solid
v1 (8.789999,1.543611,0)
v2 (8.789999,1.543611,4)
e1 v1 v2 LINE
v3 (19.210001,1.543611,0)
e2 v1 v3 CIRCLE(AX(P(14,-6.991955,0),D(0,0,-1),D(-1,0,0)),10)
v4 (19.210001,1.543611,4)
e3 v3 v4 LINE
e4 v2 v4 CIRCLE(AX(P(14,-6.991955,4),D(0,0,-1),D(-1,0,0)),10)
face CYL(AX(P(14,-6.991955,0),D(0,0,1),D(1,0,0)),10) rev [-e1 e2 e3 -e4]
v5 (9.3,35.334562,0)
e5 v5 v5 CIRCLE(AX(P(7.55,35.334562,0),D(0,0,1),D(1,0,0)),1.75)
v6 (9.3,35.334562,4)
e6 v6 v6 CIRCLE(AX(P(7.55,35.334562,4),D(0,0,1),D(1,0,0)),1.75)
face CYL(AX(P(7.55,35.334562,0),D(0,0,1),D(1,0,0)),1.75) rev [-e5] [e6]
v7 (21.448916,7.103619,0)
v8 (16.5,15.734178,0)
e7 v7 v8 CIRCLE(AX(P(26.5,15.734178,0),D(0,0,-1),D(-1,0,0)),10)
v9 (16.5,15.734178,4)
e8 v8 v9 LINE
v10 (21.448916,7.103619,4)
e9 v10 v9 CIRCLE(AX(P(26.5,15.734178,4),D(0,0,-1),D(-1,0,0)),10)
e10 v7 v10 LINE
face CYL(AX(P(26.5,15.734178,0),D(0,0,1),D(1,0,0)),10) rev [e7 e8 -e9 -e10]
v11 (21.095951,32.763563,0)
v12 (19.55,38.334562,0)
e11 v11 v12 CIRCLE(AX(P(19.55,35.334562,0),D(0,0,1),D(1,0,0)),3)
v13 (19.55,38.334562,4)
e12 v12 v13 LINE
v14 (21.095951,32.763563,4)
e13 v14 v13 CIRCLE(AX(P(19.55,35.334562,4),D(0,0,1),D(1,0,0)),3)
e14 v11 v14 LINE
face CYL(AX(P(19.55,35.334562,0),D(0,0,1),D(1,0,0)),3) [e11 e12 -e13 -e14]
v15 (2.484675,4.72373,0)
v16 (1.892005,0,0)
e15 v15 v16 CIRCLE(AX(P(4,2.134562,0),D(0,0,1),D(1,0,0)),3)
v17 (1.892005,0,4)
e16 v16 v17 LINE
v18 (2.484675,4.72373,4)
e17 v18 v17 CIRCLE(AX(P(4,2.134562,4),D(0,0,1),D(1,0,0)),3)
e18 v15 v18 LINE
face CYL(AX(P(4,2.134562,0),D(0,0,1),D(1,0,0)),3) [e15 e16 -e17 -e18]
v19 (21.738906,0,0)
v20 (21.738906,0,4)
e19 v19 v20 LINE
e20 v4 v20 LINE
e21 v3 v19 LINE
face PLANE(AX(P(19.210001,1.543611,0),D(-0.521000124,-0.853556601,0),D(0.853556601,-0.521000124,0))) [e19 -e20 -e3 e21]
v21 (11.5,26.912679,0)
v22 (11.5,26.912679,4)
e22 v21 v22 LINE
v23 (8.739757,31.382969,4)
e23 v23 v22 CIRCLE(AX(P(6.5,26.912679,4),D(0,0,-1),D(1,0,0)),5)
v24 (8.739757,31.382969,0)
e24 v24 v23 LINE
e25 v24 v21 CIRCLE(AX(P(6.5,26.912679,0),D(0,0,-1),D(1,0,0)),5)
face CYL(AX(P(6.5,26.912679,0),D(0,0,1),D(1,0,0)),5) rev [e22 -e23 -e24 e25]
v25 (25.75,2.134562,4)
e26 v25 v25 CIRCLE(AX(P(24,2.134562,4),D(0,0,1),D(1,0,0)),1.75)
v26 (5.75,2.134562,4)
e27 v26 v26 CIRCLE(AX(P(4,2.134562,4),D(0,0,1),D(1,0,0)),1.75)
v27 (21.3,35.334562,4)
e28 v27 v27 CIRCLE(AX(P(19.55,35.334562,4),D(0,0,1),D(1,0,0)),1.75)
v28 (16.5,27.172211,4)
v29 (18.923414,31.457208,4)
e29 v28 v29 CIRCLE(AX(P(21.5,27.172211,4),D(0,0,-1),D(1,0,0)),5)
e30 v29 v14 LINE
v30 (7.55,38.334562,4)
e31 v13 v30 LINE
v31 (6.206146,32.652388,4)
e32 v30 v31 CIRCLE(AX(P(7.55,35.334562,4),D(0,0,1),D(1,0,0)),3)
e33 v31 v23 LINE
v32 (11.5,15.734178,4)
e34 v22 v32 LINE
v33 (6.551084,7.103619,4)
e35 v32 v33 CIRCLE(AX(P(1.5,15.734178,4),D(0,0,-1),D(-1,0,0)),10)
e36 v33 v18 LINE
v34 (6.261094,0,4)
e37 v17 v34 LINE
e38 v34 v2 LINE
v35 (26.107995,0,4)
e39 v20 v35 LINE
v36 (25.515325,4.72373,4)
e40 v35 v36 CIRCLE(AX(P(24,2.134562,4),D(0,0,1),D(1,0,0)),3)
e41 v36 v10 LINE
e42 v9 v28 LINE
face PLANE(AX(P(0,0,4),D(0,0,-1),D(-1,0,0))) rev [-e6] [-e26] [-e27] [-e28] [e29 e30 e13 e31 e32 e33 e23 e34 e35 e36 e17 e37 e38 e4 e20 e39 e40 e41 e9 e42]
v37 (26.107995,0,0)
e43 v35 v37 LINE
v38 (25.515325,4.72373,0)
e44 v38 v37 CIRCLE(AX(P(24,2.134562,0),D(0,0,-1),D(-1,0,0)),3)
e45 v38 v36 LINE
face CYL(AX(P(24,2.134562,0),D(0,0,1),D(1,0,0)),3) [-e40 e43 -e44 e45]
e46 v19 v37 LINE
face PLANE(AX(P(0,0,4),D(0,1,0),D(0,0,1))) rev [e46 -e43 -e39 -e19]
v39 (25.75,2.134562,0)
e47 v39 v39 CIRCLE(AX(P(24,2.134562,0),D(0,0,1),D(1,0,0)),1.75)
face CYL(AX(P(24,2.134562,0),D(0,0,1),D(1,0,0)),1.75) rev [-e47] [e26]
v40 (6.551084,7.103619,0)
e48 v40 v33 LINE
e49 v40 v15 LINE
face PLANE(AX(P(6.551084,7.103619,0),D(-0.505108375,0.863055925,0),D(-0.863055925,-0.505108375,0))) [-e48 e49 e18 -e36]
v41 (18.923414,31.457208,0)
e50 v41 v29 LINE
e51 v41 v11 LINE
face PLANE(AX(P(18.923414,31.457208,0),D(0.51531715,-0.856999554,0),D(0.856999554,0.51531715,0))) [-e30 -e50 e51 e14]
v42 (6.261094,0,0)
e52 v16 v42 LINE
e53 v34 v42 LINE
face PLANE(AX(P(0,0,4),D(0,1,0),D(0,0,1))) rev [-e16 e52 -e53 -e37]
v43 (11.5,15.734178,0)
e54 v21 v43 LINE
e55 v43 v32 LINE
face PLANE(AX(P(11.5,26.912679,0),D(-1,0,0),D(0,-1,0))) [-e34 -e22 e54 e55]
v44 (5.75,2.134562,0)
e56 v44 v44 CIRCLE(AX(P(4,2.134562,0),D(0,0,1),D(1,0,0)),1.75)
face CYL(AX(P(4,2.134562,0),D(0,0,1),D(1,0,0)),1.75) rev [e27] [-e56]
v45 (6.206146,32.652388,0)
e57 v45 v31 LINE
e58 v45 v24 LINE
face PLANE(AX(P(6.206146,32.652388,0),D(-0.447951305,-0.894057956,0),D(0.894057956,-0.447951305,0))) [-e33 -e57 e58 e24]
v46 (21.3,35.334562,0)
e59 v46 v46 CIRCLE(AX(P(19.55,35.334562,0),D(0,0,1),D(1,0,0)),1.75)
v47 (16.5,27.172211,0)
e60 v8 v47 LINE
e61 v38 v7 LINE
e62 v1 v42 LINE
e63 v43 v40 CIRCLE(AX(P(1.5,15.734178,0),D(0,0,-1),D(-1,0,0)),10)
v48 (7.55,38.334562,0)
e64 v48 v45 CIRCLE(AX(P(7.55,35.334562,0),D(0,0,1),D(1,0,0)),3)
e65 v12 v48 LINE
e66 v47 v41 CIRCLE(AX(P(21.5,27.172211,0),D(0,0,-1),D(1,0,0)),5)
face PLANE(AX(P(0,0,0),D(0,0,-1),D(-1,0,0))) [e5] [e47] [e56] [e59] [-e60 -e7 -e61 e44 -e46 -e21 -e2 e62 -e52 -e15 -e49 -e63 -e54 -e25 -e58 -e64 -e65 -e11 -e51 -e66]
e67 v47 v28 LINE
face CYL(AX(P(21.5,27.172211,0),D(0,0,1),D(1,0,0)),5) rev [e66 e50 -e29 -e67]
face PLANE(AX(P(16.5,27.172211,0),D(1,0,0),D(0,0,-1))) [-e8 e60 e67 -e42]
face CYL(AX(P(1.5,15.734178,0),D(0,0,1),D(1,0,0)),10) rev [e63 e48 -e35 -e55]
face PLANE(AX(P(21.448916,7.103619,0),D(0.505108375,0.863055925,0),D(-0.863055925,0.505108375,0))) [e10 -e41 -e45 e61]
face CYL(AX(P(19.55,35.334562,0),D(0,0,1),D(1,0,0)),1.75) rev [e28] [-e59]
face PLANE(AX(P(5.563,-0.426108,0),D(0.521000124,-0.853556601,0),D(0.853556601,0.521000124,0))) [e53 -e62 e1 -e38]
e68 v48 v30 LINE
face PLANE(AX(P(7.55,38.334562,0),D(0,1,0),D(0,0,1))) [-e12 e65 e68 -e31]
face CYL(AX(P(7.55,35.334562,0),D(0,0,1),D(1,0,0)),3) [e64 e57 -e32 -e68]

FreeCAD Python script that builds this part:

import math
import FreeCAD as App
import Part
import Sketcher

V = App.Vector


def add_polygon(sketch, points):
    """Adds a closed chain of lines whose ends are joined by coincident constraints."""
    first, n = sketch.GeometryCount, len(points)
    for a, b in zip(points, points[1:] + points[:1]):
        sketch.addGeometry(Part.LineSegment(App.Vector(*a, 0), App.Vector(*b, 0)), False)
    for i in range(n):
        sketch.addConstraint(Sketcher.Constraint("Coincident", first + i, 2, first + (i + 1) % n, 1))

doc = App.newDocument("Part")
body = doc.addObject("PartDesign::Body", "Body")

# Sketch on XY plane
sketch1 = body.newObject("Sketcher::SketchObject", "Sketch")
sketch1.AttachmentSupport = (doc.getObject("XY_Plane"), [""])
sketch1.MapMode = "FlatFace"
add_polygon(sketch1, [(0, 40), (0, 0), (28, 0), (28, 40)])  # lines 0-3
sketch1.addConstraint(Sketcher.Constraint("Vertical", 0))
sketch1.addConstraint(Sketcher.Constraint("Horizontal", 1))
sketch1.addConstraint(Sketcher.Constraint("Vertical", 2))
sketch1.addConstraint(Sketcher.Constraint("Horizontal", 3))
sketch1.addConstraint(Sketcher.Constraint("Coincident", 0, 2, -1, 1))
sketch1.addConstraint(Sketcher.Constraint("DistanceX", 1, 1, 1, 2, 28.0))
sketch1.addConstraint(Sketcher.Constraint("DistanceY", 0, 2, 0, 1, 40.0))
pad1 = body.newObject("PartDesign::Pad", "Pad")
pad1.Profile = sketch1
pad1.Length = 4

# Sketch on XY plane
sketch2 = body.newObject("Sketcher::SketchObject", "Sketch001")
sketch2.AttachmentSupport = (doc.getObject("XY_Plane"), [""])
sketch2.MapMode = "FlatFace"
sketch2.AttachmentOffset = App.Placement(V(0, 0, 4), App.Rotation())
sketch2.addGeometry(Part.Circle(V(7.5, 35.3, 0), V(0, 0, 1), 1.8), False)
sketch2.addGeometry(Part.Circle(V(19.6, 35.3, 0), V(0, 0, 1), 1.8), False)
sketch2.addGeometry(Part.Circle(V(4, 2.1, 0), V(0, 0, 1), 1.8), False)
sketch2.addGeometry(Part.Circle(V(24, 2.1, 0), V(0, 0, 1), 1.8), False)
sketch2.addConstraint(Sketcher.Constraint("Equal", 0, 1))
sketch2.addConstraint(Sketcher.Constraint("Equal", 1, 2))
sketch2.addConstraint(Sketcher.Constraint("Equal", 2, 3))
sketch2.addConstraint(Sketcher.Constraint("Horizontal", 0, 3, 1, 3))
sketch2.addConstraint(Sketcher.Constraint("Horizontal", 2, 3, 3, 3))
sketch2.addConstraint(Sketcher.Constraint("Diameter", 0, 3.5))
sketch2.addConstraint(Sketcher.Constraint("DistanceX", -1, 1, 2, 3, 4.0))
sketch2.addConstraint(Sketcher.Constraint("DistanceX", -1, 1, 3, 3, 24.0))
sketch2.addConstraint(Sketcher.Constraint("DistanceX", 0, 3, 1, 3, 12.0))
sketch2.addConstraint(Sketcher.Constraint("DistanceY", 2, 3, 0, 3, 33.2))
sketch2.addConstraint(Sketcher.Constraint("DistanceX", -1, 1, 0, 3, 7.55))
sketch2.addConstraint(Sketcher.Constraint("DistanceY", -1, 1, 0, 3, 35.334562))
pocket1 = body.newObject("PartDesign::Pocket", "Pocket")
pocket1.Profile = sketch2
pocket1.Type = "ThroughAll"

# Sketch on XY plane
sketch3 = body.newObject("Sketcher::SketchObject", "Sketch002")
sketch3.AttachmentSupport = (doc.getObject("XY_Plane"), [""])
sketch3.MapMode = "FlatFace"
sketch3.AttachmentOffset = App.Placement(V(0, 0, 4), App.Rotation())
add_polygon(sketch3, [(-7.4, 44), (-7.4, -4.9), (39.4, -4.9), (39.4, 44)])  # lines 0-3
sketch3.addGeometry(Part.LineSegment(V(11.5, 15.7, 0), V(11.5, 26.9, 0)), False)  # 4
sketch3.addGeometry(Part.ArcOfCircle(Part.Circle(V(6.5, 26.9, 0), V(0, 0, 1), 5), math.radians(0), math.radians(63)), False)  # 5
sketch3.addGeometry(Part.LineSegment(V(8.7, 31.4, 0), V(6.2, 32.7, 0)), False)  # 6
sketch3.addGeometry(Part.ArcOfCircle(Part.Circle(V(7.5, 35.3, 0), V(0, 0, 1), 3), math.radians(90), math.radians(243)), False)  # 7
sketch3.addGeometry(Part.LineSegment(V(7.5, 38.3, 0), V(19.6, 38.3, 0)), False)  # 8
sketch3.addGeometry(Part.ArcOfCircle(Part.Circle(V(19.6, 35.3, 0), V(0, 0, 1), 3), math.radians(-59), math.radians(90)), False)  # 9
sketch3.addGeometry(Part.LineSegment(V(21.1, 32.8, 0), V(18.9, 31.5, 0)), False)  # 10
sketch3.addGeometry(Part.ArcOfCircle(Part.Circle(V(21.5, 27.2, 0), V(0, 0, 1), 5), math.radians(121), math.radians(180)), False)  # 11
sketch3.addGeometry(Part.LineSegment(V(16.5, 27.2, 0), V(16.5, 15.7, 0)), False)  # 12
sketch3.addGeometry(Part.ArcOfCircle(Part.Circle(V(26.5, 15.7, 0), V(0, 0, 1), 10), math.radians(-180), math.radians(-120)), False)  # 13
sketch3.addGeometry(Part.LineSegment(V(21.4, 7.1, 0), V(25.5, 4.7, 0)), False)  # 14
sketch3.addGeometry(Part.ArcOfCircle(Part.Circle(V(24, 2.1, 0), V(0, 0, 1), 3), math.radians(-121), math.radians(60)), False)  # 15
sketch3.addGeometry(Part.LineSegment(V(22.4, -0.4, 0), V(19.2, 1.5, 0)), False)  # 16
sketch3.addGeometry(Part.ArcOfCircle(Part.Circle(V(14, -7, 0), V(0, 0, 1), 10), math.radians(59), math.radians(121)), False)  # 17
sketch3.addGeometry(Part.LineSegment(V(8.8, 1.5, 0), V(5.6, -0.4, 0)), False)  # 18
sketch3.addGeometry(Part.ArcOfCircle(Part.Circle(V(4, 2.1, 0), V(0, 0, 1), 3), math.radians(120), math.radians(301)), False)  # 19
sketch3.addGeometry(Part.LineSegment(V(2.5, 4.7, 0), V(6.6, 7.1, 0)), False)  # 20
sketch3.addGeometry(Part.ArcOfCircle(Part.Circle(V(1.5, 15.7, 0), V(0, 0, 1), 10), math.radians(-60), math.radians(0)), False)  # 21
sketch3.addConstraint(Sketcher.Constraint("Tangent", 4, 2, 5, 1))
sketch3.addConstraint(Sketcher.Constraint("Tangent", 5, 2, 6, 1))
sketch3.addConstraint(Sketcher.Constraint("Tangent", 6, 2, 7, 2))
sketch3.addConstraint(Sketcher.Constraint("Tangent", 7, 1, 8, 1))
sketch3.addConstraint(Sketcher.Constraint("Tangent", 8, 2, 9, 2))
sketch3.addConstraint(Sketcher.Constraint("Tangent", 9, 1, 10, 1))
sketch3.addConstraint(Sketcher.Constraint("Tangent", 10, 2, 11, 1))
sketch3.addConstraint(Sketcher.Constraint("Tangent", 11, 2, 12, 1))
sketch3.addConstraint(Sketcher.Constraint("Tangent", 12, 2, 13, 1))
sketch3.addConstraint(Sketcher.Constraint("Tangent", 13, 2, 14, 1))
sketch3.addConstraint(Sketcher.Constraint("Tangent", 14, 2, 15, 2))
sketch3.addConstraint(Sketcher.Constraint("Tangent", 15, 1, 16, 1))
sketch3.addConstraint(Sketcher.Constraint("Tangent", 16, 2, 17, 1))
sketch3.addConstraint(Sketcher.Constraint("Tangent", 17, 2, 18, 1))
sketch3.addConstraint(Sketcher.Constraint("Tangent", 18, 2, 19, 2))
sketch3.addConstraint(Sketcher.Constraint("Tangent", 19, 1, 20, 1))
sketch3.addConstraint(Sketcher.Constraint("Tangent", 20, 2, 21, 1))
sketch3.addConstraint(Sketcher.Constraint("Tangent", 21, 2, 4, 1))
sketch3.addConstraint(Sketcher.Constraint("Vertical", 0))
sketch3.addConstraint(Sketcher.Constraint("Horizontal", 1))
sketch3.addConstraint(Sketcher.Constraint("Vertical", 2))
sketch3.addConstraint(Sketcher.Constraint("Horizontal", 3))
sketch3.addConstraint(Sketcher.Constraint("Vertical", 4))
sketch3.addConstraint(Sketcher.Constraint("Horizontal", 8))
sketch3.addConstraint(Sketcher.Constraint("Vertical", 12))
sketch3.addConstraint(Sketcher.Constraint("Equal", 7, 9))
sketch3.addConstraint(Sketcher.Constraint("Equal", 5, 11))
sketch3.addConstraint(Sketcher.Constraint("Equal", 9, 15))
sketch3.addConstraint(Sketcher.Constraint("Equal", 13, 17))
sketch3.addConstraint(Sketcher.Constraint("Equal", 15, 19))
sketch3.addConstraint(Sketcher.Constraint("Equal", 17, 21))
sketch3.addConstraint(Sketcher.Constraint("Horizontal", 15, 3, 19, 3))
sketch3.addConstraint(Sketcher.Constraint("Horizontal", 13, 3, 21, 3))
sketch3.addConstraint(Sketcher.Constraint("Horizontal", 16, 2, 17, 2))
sketch3.addConstraint(Sketcher.Constraint("Horizontal", 14, 2, 19, 1))
sketch3.addConstraint(Sketcher.Constraint("Radius", 5, 5.0))
sketch3.addConstraint(Sketcher.Constraint("Radius", 7, 3.0))
sketch3.addConstraint(Sketcher.Constraint("Radius", 13, 10.0))
sketch3.addConstraint(Sketcher.Constraint("DistanceX", 8, 1, 8, 2, 12.0))
sketch3.addConstraint(Sketcher.Constraint("DistanceX", -1, 1, 15, 3, 24.0))
sketch3.addConstraint(Sketcher.Constraint("DistanceX", -1, 1, 17, 3, 14.0))
sketch3.addConstraint(Sketcher.Constraint("DistanceX", 5, 3, 11, 3, 15.0))
sketch3.addConstraint(Sketcher.Constraint("DistanceY", 15, 3, 9, 3, 33.2))
sketch3.addConstraint(Sketcher.Constraint("DistanceX", -1, 1, 7, 3, 7.55))
sketch3.addConstraint(Sketcher.Constraint("DistanceX", -1, 1, 16, 2, 19.210001))
sketch3.addConstraint(Sketcher.Constraint("DistanceY", 4, 1, 4, 2, 11.178502))
sketch3.addConstraint(Sketcher.Constraint("DistanceY", 9, 1, 9, 3, 2.570999))
sketch3.addConstraint(Sketcher.Constraint("DistanceY", 0, 2, 0, 1, 48.920918))
sketch3.addConstraint(Sketcher.Constraint("Distance", 14, 4.71164))
sketch3.addConstraint(Sketcher.Constraint("DistanceX", 1, 1, 1, 2, 46.756276))
sketch3.addConstraint(Sketcher.Constraint("DistanceY", -1, 1, 5, 3, 26.912679))
sketch3.addConstraint(Sketcher.Constraint("DistanceX", 0, 2, -1, 1, 7.350549))
sketch3.addConstraint(Sketcher.Constraint("DistanceY", 0, 2, -1, 1, 4.910061))
pocket2 = body.newObject("PartDesign::Pocket", "Pocket001")
pocket2.Profile = sketch3
pocket2.Type = "ThroughAll"

doc.recompute()
